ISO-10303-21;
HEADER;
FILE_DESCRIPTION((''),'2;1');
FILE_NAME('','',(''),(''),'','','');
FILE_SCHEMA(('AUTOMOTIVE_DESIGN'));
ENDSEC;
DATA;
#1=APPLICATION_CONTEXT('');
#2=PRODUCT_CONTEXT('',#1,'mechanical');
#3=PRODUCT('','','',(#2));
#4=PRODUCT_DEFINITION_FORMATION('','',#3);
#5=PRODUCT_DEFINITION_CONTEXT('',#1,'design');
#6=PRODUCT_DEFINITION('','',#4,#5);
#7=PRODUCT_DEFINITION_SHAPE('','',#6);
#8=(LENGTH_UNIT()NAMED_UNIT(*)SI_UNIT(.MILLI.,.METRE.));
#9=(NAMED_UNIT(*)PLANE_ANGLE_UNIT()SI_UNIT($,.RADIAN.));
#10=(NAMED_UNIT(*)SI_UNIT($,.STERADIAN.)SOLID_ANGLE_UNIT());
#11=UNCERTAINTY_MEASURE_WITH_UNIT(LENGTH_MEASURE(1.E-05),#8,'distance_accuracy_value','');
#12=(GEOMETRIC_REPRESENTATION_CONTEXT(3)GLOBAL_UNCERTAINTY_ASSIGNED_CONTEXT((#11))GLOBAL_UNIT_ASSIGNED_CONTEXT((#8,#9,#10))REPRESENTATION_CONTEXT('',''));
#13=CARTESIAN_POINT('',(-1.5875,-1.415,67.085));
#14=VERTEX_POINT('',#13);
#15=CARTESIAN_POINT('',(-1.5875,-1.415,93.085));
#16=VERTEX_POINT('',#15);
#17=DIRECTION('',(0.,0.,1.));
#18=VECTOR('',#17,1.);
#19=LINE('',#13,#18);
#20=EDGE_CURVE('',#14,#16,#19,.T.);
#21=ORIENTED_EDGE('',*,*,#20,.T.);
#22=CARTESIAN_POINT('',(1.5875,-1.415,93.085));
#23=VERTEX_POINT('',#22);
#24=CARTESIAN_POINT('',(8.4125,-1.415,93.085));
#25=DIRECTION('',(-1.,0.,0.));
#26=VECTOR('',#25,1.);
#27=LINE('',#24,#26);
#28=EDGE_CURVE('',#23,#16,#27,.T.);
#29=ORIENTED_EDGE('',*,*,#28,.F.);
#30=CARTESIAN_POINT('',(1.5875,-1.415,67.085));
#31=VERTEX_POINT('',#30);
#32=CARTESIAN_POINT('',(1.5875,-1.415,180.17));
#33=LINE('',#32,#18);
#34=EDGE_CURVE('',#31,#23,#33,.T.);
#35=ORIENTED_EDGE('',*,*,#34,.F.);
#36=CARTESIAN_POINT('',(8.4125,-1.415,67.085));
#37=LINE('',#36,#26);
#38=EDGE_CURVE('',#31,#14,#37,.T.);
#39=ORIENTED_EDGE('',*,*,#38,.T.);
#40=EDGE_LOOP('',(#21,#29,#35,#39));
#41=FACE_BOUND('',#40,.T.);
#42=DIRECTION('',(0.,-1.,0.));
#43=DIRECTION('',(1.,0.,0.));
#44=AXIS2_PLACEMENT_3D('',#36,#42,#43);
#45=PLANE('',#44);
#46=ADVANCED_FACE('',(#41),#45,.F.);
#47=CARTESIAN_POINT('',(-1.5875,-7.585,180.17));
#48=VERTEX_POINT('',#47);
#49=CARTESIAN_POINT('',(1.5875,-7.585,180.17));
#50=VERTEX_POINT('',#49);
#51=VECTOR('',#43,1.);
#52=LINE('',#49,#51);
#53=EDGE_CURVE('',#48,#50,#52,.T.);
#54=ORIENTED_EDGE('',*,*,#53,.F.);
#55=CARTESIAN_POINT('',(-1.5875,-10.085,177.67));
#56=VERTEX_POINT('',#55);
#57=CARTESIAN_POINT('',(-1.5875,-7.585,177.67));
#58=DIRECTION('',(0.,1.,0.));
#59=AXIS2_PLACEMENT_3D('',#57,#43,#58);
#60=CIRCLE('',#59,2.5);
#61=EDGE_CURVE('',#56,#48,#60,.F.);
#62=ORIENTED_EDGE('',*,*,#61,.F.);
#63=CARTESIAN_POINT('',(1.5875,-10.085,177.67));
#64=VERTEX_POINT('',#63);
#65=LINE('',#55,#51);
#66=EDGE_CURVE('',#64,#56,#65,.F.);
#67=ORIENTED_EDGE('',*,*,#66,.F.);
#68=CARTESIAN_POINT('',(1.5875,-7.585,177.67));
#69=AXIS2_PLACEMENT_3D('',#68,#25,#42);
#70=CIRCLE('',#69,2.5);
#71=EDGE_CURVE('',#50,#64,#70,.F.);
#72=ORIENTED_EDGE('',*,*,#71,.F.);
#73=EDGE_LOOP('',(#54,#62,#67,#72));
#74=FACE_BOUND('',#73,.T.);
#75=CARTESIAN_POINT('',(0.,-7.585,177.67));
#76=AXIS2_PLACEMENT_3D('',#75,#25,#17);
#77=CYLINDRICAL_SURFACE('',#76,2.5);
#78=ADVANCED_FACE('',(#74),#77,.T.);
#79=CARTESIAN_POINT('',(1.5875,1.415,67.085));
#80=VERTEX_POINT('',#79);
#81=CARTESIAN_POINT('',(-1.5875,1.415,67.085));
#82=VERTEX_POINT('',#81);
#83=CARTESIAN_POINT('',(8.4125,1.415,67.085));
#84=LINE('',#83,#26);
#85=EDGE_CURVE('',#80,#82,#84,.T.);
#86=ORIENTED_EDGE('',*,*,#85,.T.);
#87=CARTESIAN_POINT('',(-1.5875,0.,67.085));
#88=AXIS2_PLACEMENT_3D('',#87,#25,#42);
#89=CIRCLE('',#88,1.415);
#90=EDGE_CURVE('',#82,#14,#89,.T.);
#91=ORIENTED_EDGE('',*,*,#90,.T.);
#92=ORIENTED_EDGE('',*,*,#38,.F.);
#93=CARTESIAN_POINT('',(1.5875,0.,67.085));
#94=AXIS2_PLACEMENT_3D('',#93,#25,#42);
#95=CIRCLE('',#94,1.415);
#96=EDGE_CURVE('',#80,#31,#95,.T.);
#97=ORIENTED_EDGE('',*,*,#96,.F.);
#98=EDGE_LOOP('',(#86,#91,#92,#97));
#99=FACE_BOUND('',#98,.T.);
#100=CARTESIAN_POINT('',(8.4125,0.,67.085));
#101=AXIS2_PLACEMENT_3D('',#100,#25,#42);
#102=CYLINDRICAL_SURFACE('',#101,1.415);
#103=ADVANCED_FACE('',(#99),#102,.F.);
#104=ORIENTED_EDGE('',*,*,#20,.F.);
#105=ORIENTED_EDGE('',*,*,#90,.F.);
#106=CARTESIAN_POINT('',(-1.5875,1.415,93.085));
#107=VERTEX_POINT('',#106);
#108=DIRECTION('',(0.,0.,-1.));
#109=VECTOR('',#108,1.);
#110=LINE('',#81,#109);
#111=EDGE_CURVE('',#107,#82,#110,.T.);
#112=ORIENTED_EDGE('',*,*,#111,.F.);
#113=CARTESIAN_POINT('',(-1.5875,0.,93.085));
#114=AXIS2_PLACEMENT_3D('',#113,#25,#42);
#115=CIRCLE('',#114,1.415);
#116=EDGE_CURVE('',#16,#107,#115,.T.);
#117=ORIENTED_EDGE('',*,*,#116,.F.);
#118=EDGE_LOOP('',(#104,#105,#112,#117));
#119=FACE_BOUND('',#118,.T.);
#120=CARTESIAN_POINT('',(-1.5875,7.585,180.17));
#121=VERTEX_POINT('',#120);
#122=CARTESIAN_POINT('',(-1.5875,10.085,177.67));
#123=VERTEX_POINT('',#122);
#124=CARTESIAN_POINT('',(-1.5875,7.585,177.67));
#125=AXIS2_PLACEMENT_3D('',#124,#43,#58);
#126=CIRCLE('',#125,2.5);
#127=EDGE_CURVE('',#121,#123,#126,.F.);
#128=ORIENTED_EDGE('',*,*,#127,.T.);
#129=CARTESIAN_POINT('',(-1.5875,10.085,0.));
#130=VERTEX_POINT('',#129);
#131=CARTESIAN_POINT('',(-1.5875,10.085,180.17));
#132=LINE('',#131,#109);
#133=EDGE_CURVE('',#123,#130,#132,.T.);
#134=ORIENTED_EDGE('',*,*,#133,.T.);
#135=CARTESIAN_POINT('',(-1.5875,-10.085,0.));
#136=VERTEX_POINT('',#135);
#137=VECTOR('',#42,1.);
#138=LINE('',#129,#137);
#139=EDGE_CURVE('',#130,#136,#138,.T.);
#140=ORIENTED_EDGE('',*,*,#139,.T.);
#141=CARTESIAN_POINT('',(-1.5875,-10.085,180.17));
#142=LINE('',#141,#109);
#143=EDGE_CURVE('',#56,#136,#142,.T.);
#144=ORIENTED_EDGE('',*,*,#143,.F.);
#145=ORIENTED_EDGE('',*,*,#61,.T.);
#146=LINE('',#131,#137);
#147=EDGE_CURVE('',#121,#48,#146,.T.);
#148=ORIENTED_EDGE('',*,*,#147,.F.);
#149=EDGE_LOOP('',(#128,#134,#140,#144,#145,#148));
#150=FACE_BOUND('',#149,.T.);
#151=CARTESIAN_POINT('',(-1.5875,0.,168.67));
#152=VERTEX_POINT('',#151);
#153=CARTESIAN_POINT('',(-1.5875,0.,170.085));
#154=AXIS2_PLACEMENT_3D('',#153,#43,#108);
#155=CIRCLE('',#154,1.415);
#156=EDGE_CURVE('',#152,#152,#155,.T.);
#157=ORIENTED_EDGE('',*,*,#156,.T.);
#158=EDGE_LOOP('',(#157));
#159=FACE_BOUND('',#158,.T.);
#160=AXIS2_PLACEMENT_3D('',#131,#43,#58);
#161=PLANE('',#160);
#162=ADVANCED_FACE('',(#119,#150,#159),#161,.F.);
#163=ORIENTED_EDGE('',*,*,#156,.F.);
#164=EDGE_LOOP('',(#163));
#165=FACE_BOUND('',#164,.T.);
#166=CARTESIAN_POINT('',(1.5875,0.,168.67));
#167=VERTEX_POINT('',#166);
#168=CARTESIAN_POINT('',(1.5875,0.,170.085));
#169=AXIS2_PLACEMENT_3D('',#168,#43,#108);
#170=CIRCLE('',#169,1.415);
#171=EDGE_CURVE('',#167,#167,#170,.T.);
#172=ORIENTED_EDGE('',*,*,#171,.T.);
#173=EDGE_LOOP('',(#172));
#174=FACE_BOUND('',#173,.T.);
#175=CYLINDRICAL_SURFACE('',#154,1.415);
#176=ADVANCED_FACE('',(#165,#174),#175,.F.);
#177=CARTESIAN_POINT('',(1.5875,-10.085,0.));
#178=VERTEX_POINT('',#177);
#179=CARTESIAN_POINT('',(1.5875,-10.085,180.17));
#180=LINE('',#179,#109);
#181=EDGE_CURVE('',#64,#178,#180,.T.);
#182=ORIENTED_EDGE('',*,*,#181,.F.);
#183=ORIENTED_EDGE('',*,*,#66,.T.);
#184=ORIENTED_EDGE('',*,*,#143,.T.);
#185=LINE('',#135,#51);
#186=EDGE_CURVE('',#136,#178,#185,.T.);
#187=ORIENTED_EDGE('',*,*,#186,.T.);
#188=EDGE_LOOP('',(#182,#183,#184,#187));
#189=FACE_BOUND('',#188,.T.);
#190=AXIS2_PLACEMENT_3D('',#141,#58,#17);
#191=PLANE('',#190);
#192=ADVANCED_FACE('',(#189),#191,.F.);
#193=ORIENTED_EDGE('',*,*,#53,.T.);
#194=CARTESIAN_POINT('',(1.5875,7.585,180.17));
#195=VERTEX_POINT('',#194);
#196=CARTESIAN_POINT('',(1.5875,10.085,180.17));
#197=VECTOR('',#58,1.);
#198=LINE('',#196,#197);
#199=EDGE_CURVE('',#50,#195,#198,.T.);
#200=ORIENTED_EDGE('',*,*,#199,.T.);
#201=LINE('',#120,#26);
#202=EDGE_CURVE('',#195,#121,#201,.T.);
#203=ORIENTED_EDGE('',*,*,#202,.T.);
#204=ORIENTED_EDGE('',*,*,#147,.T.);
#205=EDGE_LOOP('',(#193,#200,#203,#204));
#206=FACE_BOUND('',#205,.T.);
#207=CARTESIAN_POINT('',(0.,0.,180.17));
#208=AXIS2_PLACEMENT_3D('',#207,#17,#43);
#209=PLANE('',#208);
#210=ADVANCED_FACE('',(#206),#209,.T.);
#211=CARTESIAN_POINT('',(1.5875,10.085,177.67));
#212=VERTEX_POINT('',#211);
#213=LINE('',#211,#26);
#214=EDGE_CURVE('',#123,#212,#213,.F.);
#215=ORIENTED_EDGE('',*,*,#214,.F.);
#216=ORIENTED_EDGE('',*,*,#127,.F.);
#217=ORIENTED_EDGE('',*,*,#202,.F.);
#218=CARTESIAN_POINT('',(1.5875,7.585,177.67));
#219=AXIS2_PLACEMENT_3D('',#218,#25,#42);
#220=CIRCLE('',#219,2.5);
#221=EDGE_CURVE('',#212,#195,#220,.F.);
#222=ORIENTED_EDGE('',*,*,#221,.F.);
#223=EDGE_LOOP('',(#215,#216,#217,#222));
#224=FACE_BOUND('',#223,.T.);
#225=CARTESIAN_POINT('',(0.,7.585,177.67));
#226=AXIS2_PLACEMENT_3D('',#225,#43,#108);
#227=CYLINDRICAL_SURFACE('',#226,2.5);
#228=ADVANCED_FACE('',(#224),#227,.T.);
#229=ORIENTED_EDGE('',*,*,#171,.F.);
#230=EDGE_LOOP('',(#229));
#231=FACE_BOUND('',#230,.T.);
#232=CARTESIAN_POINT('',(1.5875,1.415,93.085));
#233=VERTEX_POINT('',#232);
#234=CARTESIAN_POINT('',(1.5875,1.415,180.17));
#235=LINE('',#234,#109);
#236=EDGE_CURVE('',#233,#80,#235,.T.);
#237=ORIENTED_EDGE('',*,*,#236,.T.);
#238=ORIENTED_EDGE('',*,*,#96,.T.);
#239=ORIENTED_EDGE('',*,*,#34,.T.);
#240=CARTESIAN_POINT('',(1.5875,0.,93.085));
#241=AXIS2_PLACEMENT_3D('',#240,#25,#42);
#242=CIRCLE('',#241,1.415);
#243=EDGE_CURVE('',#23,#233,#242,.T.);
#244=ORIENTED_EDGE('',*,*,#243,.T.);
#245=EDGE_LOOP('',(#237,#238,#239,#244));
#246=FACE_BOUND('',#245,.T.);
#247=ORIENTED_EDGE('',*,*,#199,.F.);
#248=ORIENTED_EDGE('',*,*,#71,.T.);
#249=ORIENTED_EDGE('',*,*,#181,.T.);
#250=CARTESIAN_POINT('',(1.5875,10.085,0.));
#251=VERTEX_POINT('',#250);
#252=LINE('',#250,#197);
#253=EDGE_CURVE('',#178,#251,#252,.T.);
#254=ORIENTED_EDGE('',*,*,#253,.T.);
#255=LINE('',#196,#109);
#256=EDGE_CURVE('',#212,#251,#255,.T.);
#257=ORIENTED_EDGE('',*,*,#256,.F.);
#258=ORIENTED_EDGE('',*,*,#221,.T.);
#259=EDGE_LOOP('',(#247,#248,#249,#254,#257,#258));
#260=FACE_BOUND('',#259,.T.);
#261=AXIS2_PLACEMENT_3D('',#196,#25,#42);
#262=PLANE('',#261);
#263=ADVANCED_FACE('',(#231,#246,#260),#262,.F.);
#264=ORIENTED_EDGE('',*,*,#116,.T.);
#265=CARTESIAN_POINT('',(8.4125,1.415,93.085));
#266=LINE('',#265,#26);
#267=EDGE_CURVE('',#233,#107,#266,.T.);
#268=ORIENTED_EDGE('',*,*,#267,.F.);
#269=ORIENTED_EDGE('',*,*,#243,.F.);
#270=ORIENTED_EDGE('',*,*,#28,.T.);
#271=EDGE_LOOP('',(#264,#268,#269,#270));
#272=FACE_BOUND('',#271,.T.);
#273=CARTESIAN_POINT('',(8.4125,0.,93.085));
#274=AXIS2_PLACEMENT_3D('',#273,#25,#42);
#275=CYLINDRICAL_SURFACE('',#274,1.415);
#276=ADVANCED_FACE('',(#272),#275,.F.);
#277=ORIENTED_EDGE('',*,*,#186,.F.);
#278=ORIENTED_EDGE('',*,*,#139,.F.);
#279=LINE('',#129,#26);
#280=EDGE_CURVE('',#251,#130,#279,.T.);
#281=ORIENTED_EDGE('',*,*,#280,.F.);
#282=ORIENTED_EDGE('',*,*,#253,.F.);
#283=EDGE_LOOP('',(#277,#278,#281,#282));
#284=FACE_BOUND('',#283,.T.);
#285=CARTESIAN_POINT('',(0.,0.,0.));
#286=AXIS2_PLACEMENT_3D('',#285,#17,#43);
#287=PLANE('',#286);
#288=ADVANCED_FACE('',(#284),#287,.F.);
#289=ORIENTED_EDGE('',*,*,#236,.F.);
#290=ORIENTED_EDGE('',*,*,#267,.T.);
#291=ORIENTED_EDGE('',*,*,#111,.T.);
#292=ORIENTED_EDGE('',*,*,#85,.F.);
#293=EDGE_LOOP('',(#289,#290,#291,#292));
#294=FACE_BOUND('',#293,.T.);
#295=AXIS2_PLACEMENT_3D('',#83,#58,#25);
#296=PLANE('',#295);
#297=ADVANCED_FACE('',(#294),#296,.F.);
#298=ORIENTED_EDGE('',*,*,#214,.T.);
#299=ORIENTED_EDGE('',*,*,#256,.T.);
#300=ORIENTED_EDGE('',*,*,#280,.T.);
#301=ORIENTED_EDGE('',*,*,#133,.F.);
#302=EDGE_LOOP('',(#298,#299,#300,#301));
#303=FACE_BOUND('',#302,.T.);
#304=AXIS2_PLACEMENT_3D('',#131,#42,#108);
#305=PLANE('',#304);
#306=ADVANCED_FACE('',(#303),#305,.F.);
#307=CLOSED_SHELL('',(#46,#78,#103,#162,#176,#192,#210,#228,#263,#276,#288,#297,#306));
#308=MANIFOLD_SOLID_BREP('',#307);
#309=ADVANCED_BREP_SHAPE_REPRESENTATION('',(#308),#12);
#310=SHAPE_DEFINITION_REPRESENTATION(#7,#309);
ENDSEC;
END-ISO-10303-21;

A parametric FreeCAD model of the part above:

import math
import FreeCAD as App
import Part
import Sketcher


def edges_at(feature, points):
    """Names of the edges that pass closest to the given points."""
    edges = feature.Shape.Edges
    near = lambda p: min(range(len(edges)), key=lambda i: edges[i].distToShape(Part.Vertex(*p))[0])
    return sorted({f"Edge{near(p) + 1}" for p in points})


def add_polygon(sketch, points):
    """Adds a closed chain of lines whose ends are joined by coincident constraints."""
    first, n = sketch.GeometryCount, len(points)
    for a, b in zip(points, points[1:] + points[:1]):
        sketch.addGeometry(Part.LineSegment(App.Vector(*a, 0), App.Vector(*b, 0)), False)
    for i in range(n):
        sketch.addConstraint(Sketcher.Constraint("Coincident", first + i, 2, first + (i + 1) % n, 1))

doc = App.newDocument("Part")
body = doc.addObject("PartDesign::Body", "Body")

# Sketch on XY plane
sketch1 = body.newObject("Sketcher::SketchObject", "Sketch")
sketch1.AttachmentSupport = (doc.getObject("XY_Plane"), [""])
sketch1.MapMode = "FlatFace"
add_polygon(sketch1, [(-1.5875, 10.085), (-1.5875, -10.085), (1.5875, -10.085), (1.5875, 10.085)])  # lines 0-3
sketch1.addConstraint([
    Sketcher.Constraint("Vertical", 0),
    Sketcher.Constraint("Horizontal", 1),
    Sketcher.Constraint("Vertical", 2),
    Sketcher.Constraint("Horizontal", 3),
    Sketcher.Constraint("Symmetric", 0, 2, 2, 2, -1, 1),
    Sketcher.Constraint("DistanceY", 0, 2, 0, 1, 20.17),
    Sketcher.Constraint("DistanceX", 1, 1, 1, 2, 3.175),
])
pad1 = body.newObject("PartDesign::Pad", "Pad")
pad1.Profile = sketch1
pad1.Length = 180.17

# Sketch on YZ plane
sketch2 = body.newObject("Sketcher::SketchObject", "Sketch001")
sketch2.AttachmentSupport = (doc.getObject("YZ_Plane"), [""])
sketch2.MapMode = "FlatFace"
sketch2.AttachmentOffset = App.Placement(App.Vector(0, 0, 1.5875), App.Rotation())
sketch2.addGeometry(Part.Circle(App.Vector(0, 170.085, 0), App.Vector(0, 0, 1), 1.415), False)
sketch2.addConstraint([
    Sketcher.Constraint("PointOnObject", 0, 3, -2),
    Sketcher.Constraint("Diameter", 0, 2.83),
    Sketcher.Constraint("DistanceY", -1, 1, 0, 3, 170.085),
])
pocket1 = body.newObject("PartDesign::Pocket", "Pocket")
pocket1.Profile = sketch2
pocket1.Type = "ThroughAll"
doc.recompute()

fillet = body.newObject("PartDesign::Fillet", "Fillet")
fillet.Base = (pocket1, edges_at(pocket1, [(0, -10.085, 180.17), (0, 10.085, 180.17)]))
fillet.Radius = 2.5

# Sketch on YZ plane
sketch3 = body.newObject("Sketcher::SketchObject", "Sketch002")
sketch3.AttachmentSupport = (doc.getObject("YZ_Plane"), [""])
sketch3.MapMode = "FlatFace"
sketch3.AttachmentOffset = App.Placement(App.Vector(0, 0, -1.5875), App.Rotation())
sketch3.addGeometry([
    Part.LineSegment(App.Vector(1.415, 93.085, 0), App.Vector(1.415, 67.085, 0)),
    Part.ArcOfCircle(Part.Circle(App.Vector(0, 67.085, 0), App.Vector(0, 0, 1), 1.415), math.radians(180), math.radians(360)),
    Part.LineSegment(App.Vector(-1.415, 67.085, 0), App.Vector(-1.415, 93.085, 0)),
    Part.ArcOfCircle(Part.Circle(App.Vector(0, 93.085, 0), App.Vector(0, 0, 1), 1.415), math.radians(0), math.radians(180)),
], False)
sketch3.addConstraint([
    Sketcher.Constraint("Tangent", 0, 2, 1, 2),
    Sketcher.Constraint("Tangent", 1, 1, 2, 1),
    Sketcher.Constraint("Tangent", 2, 2, 3, 2),
    Sketcher.Constraint("Tangent", 3, 1, 0, 1),
    Sketcher.Constraint("Vertical", 0),
    Sketcher.Constraint("Vertical", 2),
    Sketcher.Constraint("PointOnObject", 1, 3, -2),
    Sketcher.Constraint("DistanceY", 0, 2, 0, 1, 26.0),
    Sketcher.Constraint("Radius", 1, 1.415),
    Sketcher.Constraint("DistanceY", -1, 1, 1, 3, 67.085),
])
pocket2 = body.newObject("PartDesign::Pocket", "Pocket001")
pocket2.Profile = sketch3
pocket2.Length = 10
pocket2.Reversed = True

doc.recompute()
